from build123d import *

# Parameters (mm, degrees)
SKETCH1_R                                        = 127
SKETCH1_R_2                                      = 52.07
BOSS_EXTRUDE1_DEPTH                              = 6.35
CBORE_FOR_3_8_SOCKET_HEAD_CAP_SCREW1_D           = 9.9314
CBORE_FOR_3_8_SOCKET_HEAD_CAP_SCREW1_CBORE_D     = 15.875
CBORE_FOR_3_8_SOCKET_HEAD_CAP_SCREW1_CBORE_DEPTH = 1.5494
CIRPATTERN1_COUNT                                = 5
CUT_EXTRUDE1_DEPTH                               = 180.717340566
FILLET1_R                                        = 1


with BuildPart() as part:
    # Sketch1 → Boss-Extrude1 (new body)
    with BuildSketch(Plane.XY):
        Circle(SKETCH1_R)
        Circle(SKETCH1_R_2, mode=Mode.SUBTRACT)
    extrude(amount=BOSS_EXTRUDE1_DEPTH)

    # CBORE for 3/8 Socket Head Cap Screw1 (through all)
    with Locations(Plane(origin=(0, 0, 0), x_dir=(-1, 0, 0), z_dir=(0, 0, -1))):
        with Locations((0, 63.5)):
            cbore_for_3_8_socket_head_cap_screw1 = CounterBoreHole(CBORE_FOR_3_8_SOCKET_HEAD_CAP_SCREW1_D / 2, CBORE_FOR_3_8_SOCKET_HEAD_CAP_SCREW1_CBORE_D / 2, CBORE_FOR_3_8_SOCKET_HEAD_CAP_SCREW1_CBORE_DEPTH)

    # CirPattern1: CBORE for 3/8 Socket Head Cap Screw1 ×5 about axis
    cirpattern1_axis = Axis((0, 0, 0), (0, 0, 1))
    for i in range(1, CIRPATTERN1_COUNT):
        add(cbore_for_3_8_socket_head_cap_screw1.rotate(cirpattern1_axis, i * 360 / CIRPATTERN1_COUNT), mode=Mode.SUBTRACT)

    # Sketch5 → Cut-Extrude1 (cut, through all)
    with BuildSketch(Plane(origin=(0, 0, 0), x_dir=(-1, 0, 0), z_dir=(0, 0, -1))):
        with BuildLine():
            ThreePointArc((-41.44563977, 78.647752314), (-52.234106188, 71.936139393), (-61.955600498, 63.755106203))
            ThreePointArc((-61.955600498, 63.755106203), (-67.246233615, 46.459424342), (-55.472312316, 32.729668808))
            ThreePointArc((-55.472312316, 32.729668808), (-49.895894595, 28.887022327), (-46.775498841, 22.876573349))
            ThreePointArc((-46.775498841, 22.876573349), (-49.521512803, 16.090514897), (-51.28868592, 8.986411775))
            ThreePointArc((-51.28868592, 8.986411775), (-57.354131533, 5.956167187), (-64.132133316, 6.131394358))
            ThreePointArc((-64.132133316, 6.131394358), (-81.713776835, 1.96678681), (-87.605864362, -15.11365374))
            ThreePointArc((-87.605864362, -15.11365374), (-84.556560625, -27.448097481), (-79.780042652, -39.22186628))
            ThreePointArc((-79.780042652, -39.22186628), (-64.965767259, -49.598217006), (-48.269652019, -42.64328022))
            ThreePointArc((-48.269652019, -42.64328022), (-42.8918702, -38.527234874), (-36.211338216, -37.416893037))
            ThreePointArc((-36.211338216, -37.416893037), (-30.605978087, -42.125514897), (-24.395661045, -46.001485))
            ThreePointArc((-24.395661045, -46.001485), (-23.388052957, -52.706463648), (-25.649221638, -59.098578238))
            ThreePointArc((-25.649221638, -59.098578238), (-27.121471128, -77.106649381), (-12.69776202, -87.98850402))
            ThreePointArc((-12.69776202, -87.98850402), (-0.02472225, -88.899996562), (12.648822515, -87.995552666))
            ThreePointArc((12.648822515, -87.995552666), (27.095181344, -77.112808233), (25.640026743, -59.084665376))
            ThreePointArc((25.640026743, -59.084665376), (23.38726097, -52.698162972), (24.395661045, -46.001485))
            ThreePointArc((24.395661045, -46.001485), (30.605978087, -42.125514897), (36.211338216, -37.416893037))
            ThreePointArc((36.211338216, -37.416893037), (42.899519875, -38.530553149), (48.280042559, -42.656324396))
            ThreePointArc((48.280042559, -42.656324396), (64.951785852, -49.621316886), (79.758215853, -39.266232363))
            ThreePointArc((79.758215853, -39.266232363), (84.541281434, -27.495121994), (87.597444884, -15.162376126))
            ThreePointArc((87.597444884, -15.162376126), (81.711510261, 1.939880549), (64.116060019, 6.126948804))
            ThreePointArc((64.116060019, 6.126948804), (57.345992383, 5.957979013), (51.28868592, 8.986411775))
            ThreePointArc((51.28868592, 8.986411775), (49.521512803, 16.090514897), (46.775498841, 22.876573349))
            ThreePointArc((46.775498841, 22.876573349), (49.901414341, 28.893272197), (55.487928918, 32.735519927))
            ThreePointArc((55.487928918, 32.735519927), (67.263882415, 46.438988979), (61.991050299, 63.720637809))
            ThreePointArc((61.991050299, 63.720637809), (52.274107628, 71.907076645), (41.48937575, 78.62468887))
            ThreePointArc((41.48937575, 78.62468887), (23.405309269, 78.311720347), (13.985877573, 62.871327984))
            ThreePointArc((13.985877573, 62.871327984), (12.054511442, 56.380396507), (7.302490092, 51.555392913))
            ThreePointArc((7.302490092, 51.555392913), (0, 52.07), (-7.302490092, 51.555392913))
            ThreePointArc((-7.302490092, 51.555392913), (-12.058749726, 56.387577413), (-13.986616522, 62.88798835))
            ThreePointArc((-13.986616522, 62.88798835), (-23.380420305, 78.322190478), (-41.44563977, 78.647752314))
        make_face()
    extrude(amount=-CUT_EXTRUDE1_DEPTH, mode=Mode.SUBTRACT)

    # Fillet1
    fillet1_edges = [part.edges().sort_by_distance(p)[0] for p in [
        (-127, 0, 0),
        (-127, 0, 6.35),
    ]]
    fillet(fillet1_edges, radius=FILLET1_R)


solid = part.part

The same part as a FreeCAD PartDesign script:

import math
import FreeCAD as App
import Part
import Sketcher

V = App.Vector
Q = App.Units.Quantity


def edges_at(feature, points):
    """Names of the edges that pass closest to the given points."""
    edges = feature.Shape.Edges
    near = lambda p: min(range(len(edges)), key=lambda i: edges[i].distToShape(Part.Vertex(*p))[0])
    return sorted({f"Edge{near(p) + 1}" for p in points})

doc = App.newDocument("Part")
body = doc.addObject("PartDesign::Body", "Body")

# Sketch on XY plane
sketch1 = body.newObject("Sketcher::SketchObject", "Sketch")
sketch1.AttachmentSupport = (doc.getObject("XY_Plane"), [""])
sketch1.MapMode = "FlatFace"
sketch1.addGeometry(Part.Circle(V(0, 0, 0), V(0, 0, 1), 127), False)
sketch1.addGeometry(Part.Circle(V(0, 0, 0), V(0, 0, 1), 52.07), False)
sketch1.addConstraint(Sketcher.Constraint("Coincident", 0, 3, -1, 1))
sketch1.addConstraint(Sketcher.Constraint("Coincident", 1, 3, -1, 1))
sketch1.addConstraint(Sketcher.Constraint("Diameter", 0, Q("10 in")))
sketch1.addConstraint(Sketcher.Constraint("Diameter", 1, Q("4.1 in")))
pad1 = body.newObject("PartDesign::Pad", "Pad")
pad1.Profile = sketch1
pad1.Length = Q("0.25 in")

# Sketch on XY plane
sketch2 = body.newObject("Sketcher::SketchObject", "Sketch001")
sketch2.AttachmentSupport = (doc.getObject("XY_Plane"), [""])
sketch2.MapMode = "FlatFace"
sketch2.addGeometry(Part.Circle(V(0, 63.5, 0), V(0, 0, 1), 4.9657), False)
sketch2.addConstraint(Sketcher.Constraint("PointOnObject", 0, 3, -2))
sketch2.addConstraint(Sketcher.Constraint("Diameter", 0, Q("0.391 in")))
sketch2.addConstraint(Sketcher.Constraint("DistanceY", -1, 1, 0, 3, Q("2.5 in")))
doc.recompute()
hole = body.newObject("PartDesign::Hole", "Hole")
hole.Profile = sketch2
hole.ThreadType = "None"
hole.Diameter = Q("0.391 in")
hole.DepthType = "ThroughAll"
hole.HoleCutType = "Counterbore"
hole.HoleCutDiameter = Q("0.625 in")
hole.HoleCutDepth = Q("0.061 in")
hole.Reversed = True
doc.recompute()

polarpattern = body.newObject("PartDesign::PolarPattern", "PolarPattern")
polarpattern.Originals = [hole]
polarpattern.Axis = (doc.getObject("Z_Axis"), [""])
polarpattern.Angle = 360
polarpattern.Occurrences = 5
body.Tip = polarpattern

# Sketch on XY plane
sketch3 = body.newObject("Sketcher::SketchObject", "Sketch002")
sketch3.AttachmentSupport = (doc.getObject("XY_Plane"), [""])
sketch3.MapMode = "FlatFace"
sketch3.addGeometry(Part.ArcOfCircle(Part.Circle(V(0, 0, 0), V(0, 0, 1), 88.9), math.radians(45.820113), math.radians(62.211753)), False)
sketch3.addGeometry(Part.ArcOfCircle(Part.Circle(V(48.878089, 50.297758, 0), V(0, 0, 1), 18.764901), math.radians(-69.426259), math.radians(45.820113)), False)
sketch3.addGeometry(Part.ArcOfCircle(Part.Circle(V(60.392089, 19.622579, 0), V(0, 0, 1), 14), math.radians(110.573741), math.radians(166.55993)), False)
sketch3.addGeometry(Part.ArcOfCircle(Part.Circle(V(0, 0, 0), V(0, 0, 1), 52.07), math.radians(9.938051), math.radians(26.061949)), False)
sketch3.addGeometry(Part.ArcOfCircle(Part.Circle(V(60.392089, 19.622579, 0), V(0, 0, 1), 14), math.radians(-130.55993), math.radians(-74.50549)), False)
sketch3.addGeometry(Part.ArcOfCircle(Part.Circle(V(69.138496, -11.927687, 0), V(0, 0, 1), 18.740173), math.radians(-9.788247), math.radians(105.49451)), False)
sketch3.addGeometry(Part.ArcOfCircle(Part.Circle(V(0, 0, 0), V(0, 0, 1), 88.9), math.radians(-26.179887), math.radians(-9.788247)), False)
sketch3.addGeometry(Part.ArcOfCircle(Part.Circle(V(62.940171, -30.942964, 0), V(0, 0, 1), 18.764901), math.radians(-141.426259), math.radians(-26.179887)), False)
sketch3.addGeometry(Part.ArcOfCircle(Part.Circle(V(37.324364, -51.372579, 0), V(0, 0, 1), 14), math.radians(38.573741), math.radians(94.55993)), False)
sketch3.addGeometry(Part.ArcOfCircle(Part.Circle(V(0, 0, 0), V(0, 0, 1), 52.07), math.radians(-62.061949), math.radians(-45.938051)), False)
sketch3.addGeometry(Part.ArcOfCircle(Part.Circle(V(37.324364, -51.372579, 0), V(0, 0, 1), 14), math.radians(157.44007), math.radians(213.49451)), False)
sketch3.addGeometry(Part.ArcOfCircle(Part.Circle(V(10.021066, -69.440475, 0), V(0, 0, 1), 18.740173), math.radians(-81.788247), math.radians(33.49451)), False)
sketch3.addGeometry(Part.ArcOfCircle(Part.Circle(V(0, 0, 0), V(0, 0, 1), 88.9), math.radians(-98.179887), math.radians(-81.788247)), False)
sketch3.addGeometry(Part.ArcOfCircle(Part.Circle(V(-9.978925, -69.421561, 0), V(0, 0, 1), 18.764901), math.radians(146.573741), math.radians(261.820113)), False)
sketch3.addGeometry(Part.ArcOfCircle(Part.Circle(V(-37.324364, -51.372579, 0), V(0, 0, 1), 14), math.radians(-33.426259), math.radians(22.55993)), False)
sketch3.addGeometry(Part.ArcOfCircle(Part.Circle(V(0, 0, 0), V(0, 0, 1), 52.07), math.radians(-134.061949), math.radians(-117.938051)), False)
sketch3.addGeometry(Part.ArcOfCircle(Part.Circle(V(-37.324364, -51.372579, 0), V(0, 0, 1), 14), math.radians(85.44007), math.radians(141.49451)), False)
sketch3.addGeometry(Part.ArcOfCircle(Part.Circle(V(-62.945137, -30.988887, 0), V(0, 0, 1), 18.740173), math.radians(-153.788247), math.radians(-38.50549)), False)
sketch3.addGeometry(Part.ArcOfCircle(Part.Circle(V(0, 0, 0), V(0, 0, 1), 88.9), math.radians(-170.179887), math.radians(-153.788247)), False)
sketch3.addGeometry(Part.ArcOfCircle(Part.Circle(V(-69.107485, -11.961921, 0), V(0, 0, 1), 18.764901), math.radians(74.573741), math.radians(189.820113)), False)
sketch3.addGeometry(Part.ArcOfCircle(Part.Circle(V(-60.392089, 19.622579, 0), V(0, 0, 1), 14), math.radians(-105.426259), math.radians(-49.44007)), False)
sketch3.addGeometry(Part.ArcOfCircle(Part.Circle(V(0, 0, 0), V(0, 0, 1), 52.07), math.radians(153.938051), math.radians(170.061949)), False)
sketch3.addGeometry(Part.ArcOfCircle(Part.Circle(V(-60.392089, 19.622579, 0), V(0, 0, 1), 14), math.radians(13.44007), math.radians(69.49451)), False)
sketch3.addGeometry(Part.ArcOfCircle(Part.Circle(V(-48.9233, 50.28829, 0), V(0, 0, 1), 18.740173), math.radians(134.211753), math.radians(249.49451)), False)
sketch3.addGeometry(Part.ArcOfCircle(Part.Circle(V(0, 0, 0), V(0, 0, 1), 88.9), math.radians(117.820113), math.radians(134.211753)), False)
sketch3.addGeometry(Part.ArcOfCircle(Part.Circle(V(-32.73185, 62.028687, 0), V(0, 0, 1), 18.764901), math.radians(2.573741), math.radians(117.820113)), False)
sketch3.addGeometry(Part.ArcOfCircle(Part.Circle(V(0, 63.5, 0), V(0, 0, 1), 14), math.radians(-177.426259), math.radians(-121.44007)), False)
sketch3.addGeometry(Part.ArcOfCircle(Part.Circle(V(0, 0, 0), V(0, 0, 1), 52.07), math.radians(81.938051), math.radians(98.061949)), False)
sketch3.addGeometry(Part.ArcOfCircle(Part.Circle(V(0, 63.5, 0), V(0, 0, 1), 14), math.radians(-58.55993), math.radians(-2.50549)), False)
sketch3.addGeometry(Part.ArcOfCircle(Part.Circle(V(32.708874, 62.068759, 0), V(0, 0, 1), 18.740173), math.radians(62.211753), math.radians(177.49451)), False)
sketch3.addConstraint(Sketcher.Constraint("Tangent", 0, 1, 1, 2))
sketch3.addConstraint(Sketcher.Constraint("Tangent", 1, 1, 2, 1))
sketch3.addConstraint(Sketcher.Constraint("Coincident", 2, 2, 3, 2))
sketch3.addConstraint(Sketcher.Constraint("Coincident", 3, 1, 4, 1))
sketch3.addConstraint(Sketcher.Constraint("Tangent", 4, 2, 5, 2))
sketch3.addConstraint(Sketcher.Constraint("Tangent", 5, 1, 6, 2))
sketch3.addConstraint(Sketcher.Constraint("Tangent", 6, 1, 7, 2))
sketch3.addConstraint(Sketcher.Constraint("Tangent", 7, 1, 8, 1))
sketch3.addConstraint(Sketcher.Constraint("Coincident", 8, 2, 9, 2))
sketch3.addConstraint(Sketcher.Constraint("Coincident", 9, 1, 10, 1))
sketch3.addConstraint(Sketcher.Constraint("Tangent", 10, 2, 11, 2))
sketch3.addConstraint(Sketcher.Constraint("Tangent", 11, 1, 12, 2))
sketch3.addConstraint(Sketcher.Constraint("Tangent", 12, 1, 13, 2))
sketch3.addConstraint(Sketcher.Constraint("Tangent", 13, 1, 14, 1))
sketch3.addConstraint(Sketcher.Constraint("Coincident", 14, 2, 15, 2))
sketch3.addConstraint(Sketcher.Constraint("Coincident", 15, 1, 16, 1))
sketch3.addConstraint(Sketcher.Constraint("Tangent", 16, 2, 17, 2))
sketch3.addConstraint(Sketcher.Constraint("Tangent", 17, 1, 18, 2))
sketch3.addConstraint(Sketcher.Constraint("Tangent", 18, 1, 19, 2))
sketch3.addConstraint(Sketcher.Constraint("Tangent", 19, 1, 20, 1))
sketch3.addConstraint(Sketcher.Constraint("Coincident", 20, 2, 21, 2))
sketch3.addConstraint(Sketcher.Constraint("Coincident", 21, 1, 22, 1))
sketch3.addConstraint(Sketcher.Constraint("Tangent", 22, 2, 23, 2))
sketch3.addConstraint(Sketcher.Constraint("Tangent", 23, 1, 24, 2))
sketch3.addConstraint(Sketcher.Constraint("Tangent", 24, 1, 25, 2))
sketch3.addConstraint(Sketcher.Constraint("Tangent", 25, 1, 26, 1))
sketch3.addConstraint(Sketcher.Constraint("Coincident", 26, 2, 27, 2))
sketch3.addConstraint(Sketcher.Constraint("Coincident", 27, 1, 28, 1))
sketch3.addConstraint(Sketcher.Constraint("Tangent", 28, 2, 29, 2))
sketch3.addConstraint(Sketcher.Constraint("Tangent", 29, 1, 0, 2))
sketch3.addConstraint(Sketcher.Constraint("Coincident", 0, 3, -1, 1))
sketch3.addConstraint(Sketcher.Constraint("Coincident", 3, 3, -1, 1))
sketch3.addConstraint(Sketcher.Constraint("Coincident", 6, 3, -1, 1))
sketch3.addConstraint(Sketcher.Constraint("Coincident", 9, 3, -1, 1))
sketch3.addConstraint(Sketcher.Constraint("Coincident", 12, 3, -1, 1))
sketch3.addConstraint(Sketcher.Constraint("Coincident", 15, 3, -1, 1))
sketch3.addConstraint(Sketcher.Constraint("Coincident", 18, 3, -1, 1))
sketch3.addConstraint(Sketcher.Constraint("Coincident", 21, 3, -1, 1))
sketch3.addConstraint(Sketcher.Constraint("Coincident", 24, 3, -1, 1))
sketch3.addConstraint(Sketcher.Constraint("Coincident", 27, 3, -1, 1))
sketch3.addConstraint(Sketcher.Constraint("Coincident", 4, 3, 2, 3))
sketch3.addConstraint(Sketcher.Constraint("Coincident", 10, 3, 8, 3))
sketch3.addConstraint(Sketcher.Constraint("Coincident", 16, 3, 14, 3))
sketch3.addConstraint(Sketcher.Constraint("Coincident", 22, 3, 20, 3))
sketch3.addConstraint(Sketcher.Constraint("Coincident", 28, 3, 26, 3))
sketch3.addConstraint(Sketcher.Constraint("Equal", 2, 4))
sketch3.addConstraint(Sketcher.Constraint("Equal", 0, 6))
sketch3.addConstraint(Sketcher.Constraint("Equal", 1, 7))
sketch3.addConstraint(Sketcher.Constraint("Equal", 4, 8))
sketch3.addConstraint(Sketcher.Constraint("Equal", 3, 9))
sketch3.addConstraint(Sketcher.Constraint("Equal", 8, 10))
sketch3.addConstraint(Sketcher.Constraint("Equal", 5, 11))
sketch3.addConstraint(Sketcher.Constraint("Equal", 6, 12))
sketch3.addConstraint(Sketcher.Constraint("Equal", 7, 13))
sketch3.addConstraint(Sketcher.Constraint("Equal", 10, 14))
sketch3.addConstraint(Sketcher.Constraint("Equal", 9, 15))
sketch3.addConstraint(Sketcher.Constraint("Equal", 14, 16))
sketch3.addConstraint(Sketcher.Constraint("Equal", 11, 17))
sketch3.addConstraint(Sketcher.Constraint("Equal", 12, 18))
sketch3.addConstraint(Sketcher.Constraint("Equal", 13, 19))
sketch3.addConstraint(Sketcher.Constraint("Equal", 16, 20))
sketch3.addConstraint(Sketcher.Constraint("Equal", 15, 21))
sketch3.addConstraint(Sketcher.Constraint("Equal", 20, 22))
sketch3.addConstraint(Sketcher.Constraint("Equal", 17, 23))
sketch3.addConstraint(Sketcher.Constraint("Equal", 18, 24))
sketch3.addConstraint(Sketcher.Constraint("Equal", 19, 25))
sketch3.addConstraint(Sketcher.Constraint("Equal", 22, 26))
sketch3.addConstraint(Sketcher.Constraint("Equal", 21, 27))
sketch3.addConstraint(Sketcher.Constraint("Equal", 26, 28))
sketch3.addConstraint(Sketcher.Constraint("Equal", 23, 29))
sketch3.addConstraint(Sketcher.Constraint("Symmetric", 8, 3, 14, 3, -2))
sketch3.addConstraint(Sketcher.Constraint("Symmetric", 2, 3, 20, 3, -2))
sketch3.addConstraint(Sketcher.Constraint("PointOnObject", 26, 3, -2))
sketch3.addConstraint(Sketcher.Constraint("Radius", 0, Q("3.5 in")))
sketch3.addConstraint(Sketcher.Constraint("Radius", 3, Q("2.05 in")))
sketch3.addConstraint(Sketcher.Constraint("DistanceY", -1, 1, 26, 3, Q("2.5 in")))
sketch3.addConstraint(Sketcher.Constraint("Radius", 1, 18.764901))
sketch3.addConstraint(Sketcher.Constraint("Radius", 2, 14.0))
sketch3.addConstraint(Sketcher.Constraint("DistanceY", -1, 1, 22, 2, Q("1.2888 in")))
sketch3.addConstraint(Sketcher.Constraint("Radius", 5, 18.740173))
sketch3.addConstraint(Sketcher.Constraint("DistanceX", 11, 1, 10, 2, Q("0.5099 in")))
sketch3.addConstraint(Sketcher.Constraint("DistanceX", 23, 3, -1, 1, 48.9233))
sketch3.addConstraint(Sketcher.Constraint("DistanceY", 8, 3, 7, 1, 8.729299))
pocket1 = body.newObject("PartDesign::Pocket", "Pocket")
pocket1.Profile = sketch3
pocket1.Type = "ThroughAll"
pocket1.Reversed = True
doc.recompute()

fillet = body.newObject("PartDesign::Fillet", "Fillet")
fillet.Base = (pocket1, edges_at(pocket1, [(-127, 0, 0), (-127, 0, 6.35)]))
fillet.Radius = 1

doc.recompute()
